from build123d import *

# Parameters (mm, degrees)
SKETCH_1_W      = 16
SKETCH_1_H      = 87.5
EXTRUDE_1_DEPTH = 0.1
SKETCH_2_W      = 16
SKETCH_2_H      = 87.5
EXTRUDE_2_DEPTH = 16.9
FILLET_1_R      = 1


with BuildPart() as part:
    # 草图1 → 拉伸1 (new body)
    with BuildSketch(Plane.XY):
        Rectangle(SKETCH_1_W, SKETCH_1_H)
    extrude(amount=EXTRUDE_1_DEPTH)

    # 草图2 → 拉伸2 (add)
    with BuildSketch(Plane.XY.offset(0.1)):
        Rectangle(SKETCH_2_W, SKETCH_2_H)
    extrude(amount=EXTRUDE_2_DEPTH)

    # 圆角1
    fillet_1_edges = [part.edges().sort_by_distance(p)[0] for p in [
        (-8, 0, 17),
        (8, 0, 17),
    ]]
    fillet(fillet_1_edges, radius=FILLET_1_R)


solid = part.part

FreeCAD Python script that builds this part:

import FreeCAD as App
import Part
import Sketcher


def edges_at(feature, points):
    """Names of the edges that pass closest to the given points."""
    edges = feature.Shape.Edges
    near = lambda p: min(range(len(edges)), key=lambda i: edges[i].distToShape(Part.Vertex(*p))[0])
    return sorted({f"Edge{near(p) + 1}" for p in points})

doc = App.newDocument("Part")
params = doc.addObject("Spreadsheet::Sheet", "Params")
for row, (alias, value) in enumerate([
    ("sketch1_width", "16 mm"),
    ("sketch1_height", "87.5 mm"),
    ("pad1_length", "0.1 mm"),
    ("sketch2_width", "16 mm"),
    ("sketch2_height", "87.5 mm"),
    ("pad2_length", "16.9 mm"),
    ("fillet_radius", "1 mm"),
], start=1):
    params.set(f"A{row}", alias)
    params.set(f"B{row}", "=" + value)
    params.setAlias(f"B{row}", alias)

body = doc.addObject("PartDesign::Body", "Body")

sketch1 = body.newObject("Sketcher::SketchObject", "Sketch")
sketch1.AttachmentSupport = (doc.getObject("XY_Plane"), [""])
sketch1.MapMode = "FlatFace"
sketch1.addGeometry([
    Part.LineSegment(App.Vector(-8, 44, 0), App.Vector(-8, -44, 0)),
    Part.LineSegment(App.Vector(-8, -44, 0), App.Vector(8, -44, 0)),
    Part.LineSegment(App.Vector(8, -44, 0), App.Vector(8, 44, 0)),
    Part.LineSegment(App.Vector(8, 44, 0), App.Vector(-8, 44, 0)),
], False)
sketch1.addConstraint([
    Sketcher.Constraint("Coincident", 0, 2, 1, 1),
    Sketcher.Constraint("Coincident", 1, 2, 2, 1),
    Sketcher.Constraint("Coincident", 2, 2, 3, 1),
    Sketcher.Constraint("Coincident", 3, 2, 0, 1),
    Sketcher.Constraint("Vertical", 0),
    Sketcher.Constraint("Horizontal", 1),
    Sketcher.Constraint("Vertical", 2),
    Sketcher.Constraint("Horizontal", 3),
    Sketcher.Constraint("Symmetric", 0, 2, 2, 2, -1, 1),
    Sketcher.Constraint("DistanceX", 1, 1, 1, 2, 16.0),
    Sketcher.Constraint("DistanceY", 0, 2, 0, 1, 87.5),
])
sketch1.setExpression("Constraints[9]", "Params.sketch1_width")
sketch1.setExpression("Constraints[10]", "Params.sketch1_height")
pad1 = body.newObject("PartDesign::Pad", "Pad")
pad1.Profile = sketch1
pad1.setExpression("Length", "Params.pad1_length")

sketch2 = body.newObject("Sketcher::SketchObject", "Sketch001")
sketch2.AttachmentSupport = (doc.getObject("XY_Plane"), [""])
sketch2.MapMode = "FlatFace"
sketch2.AttachmentOffset = App.Placement(App.Vector(0, 0, 0.1), App.Rotation())
sketch2.addGeometry([
    Part.LineSegment(App.Vector(-8, 44, 0), App.Vector(-8, -44, 0)),
    Part.LineSegment(App.Vector(-8, -44, 0), App.Vector(8, -44, 0)),
    Part.LineSegment(App.Vector(8, -44, 0), App.Vector(8, 44, 0)),
    Part.LineSegment(App.Vector(8, 44, 0), App.Vector(-8, 44, 0)),
], False)
sketch2.addConstraint([
    Sketcher.Constraint("Coincident", 0, 2, 1, 1),
    Sketcher.Constraint("Coincident", 1, 2, 2, 1),
    Sketcher.Constraint("Coincident", 2, 2, 3, 1),
    Sketcher.Constraint("Coincident", 3, 2, 0, 1),
    Sketcher.Constraint("Vertical", 0),
    Sketcher.Constraint("Horizontal", 1),
    Sketcher.Constraint("Vertical", 2),
    Sketcher.Constraint("Horizontal", 3),
    Sketcher.Constraint("Symmetric", 0, 2, 2, 2, -1, 1),
    Sketcher.Constraint("DistanceX", 1, 1, 1, 2, 16.0),
    Sketcher.Constraint("DistanceY", 0, 2, 0, 1, 87.5),
])
sketch2.setExpression("Constraints[9]", "Params.sketch2_width")
sketch2.setExpression("Constraints[10]", "Params.sketch2_height")
pad2 = body.newObject("PartDesign::Pad", "Pad001")
pad2.Profile = sketch2
pad2.setExpression("Length", "Params.pad2_length")
doc.recompute()

fillet = body.newObject("PartDesign::Fillet", "Fillet")
fillet.Base = (pad2, edges_at(pad2, [(-8, 0, 17), (8, 0, 17)]))
fillet.setExpression("Radius", "Params.fillet_radius")

doc.recompute()
